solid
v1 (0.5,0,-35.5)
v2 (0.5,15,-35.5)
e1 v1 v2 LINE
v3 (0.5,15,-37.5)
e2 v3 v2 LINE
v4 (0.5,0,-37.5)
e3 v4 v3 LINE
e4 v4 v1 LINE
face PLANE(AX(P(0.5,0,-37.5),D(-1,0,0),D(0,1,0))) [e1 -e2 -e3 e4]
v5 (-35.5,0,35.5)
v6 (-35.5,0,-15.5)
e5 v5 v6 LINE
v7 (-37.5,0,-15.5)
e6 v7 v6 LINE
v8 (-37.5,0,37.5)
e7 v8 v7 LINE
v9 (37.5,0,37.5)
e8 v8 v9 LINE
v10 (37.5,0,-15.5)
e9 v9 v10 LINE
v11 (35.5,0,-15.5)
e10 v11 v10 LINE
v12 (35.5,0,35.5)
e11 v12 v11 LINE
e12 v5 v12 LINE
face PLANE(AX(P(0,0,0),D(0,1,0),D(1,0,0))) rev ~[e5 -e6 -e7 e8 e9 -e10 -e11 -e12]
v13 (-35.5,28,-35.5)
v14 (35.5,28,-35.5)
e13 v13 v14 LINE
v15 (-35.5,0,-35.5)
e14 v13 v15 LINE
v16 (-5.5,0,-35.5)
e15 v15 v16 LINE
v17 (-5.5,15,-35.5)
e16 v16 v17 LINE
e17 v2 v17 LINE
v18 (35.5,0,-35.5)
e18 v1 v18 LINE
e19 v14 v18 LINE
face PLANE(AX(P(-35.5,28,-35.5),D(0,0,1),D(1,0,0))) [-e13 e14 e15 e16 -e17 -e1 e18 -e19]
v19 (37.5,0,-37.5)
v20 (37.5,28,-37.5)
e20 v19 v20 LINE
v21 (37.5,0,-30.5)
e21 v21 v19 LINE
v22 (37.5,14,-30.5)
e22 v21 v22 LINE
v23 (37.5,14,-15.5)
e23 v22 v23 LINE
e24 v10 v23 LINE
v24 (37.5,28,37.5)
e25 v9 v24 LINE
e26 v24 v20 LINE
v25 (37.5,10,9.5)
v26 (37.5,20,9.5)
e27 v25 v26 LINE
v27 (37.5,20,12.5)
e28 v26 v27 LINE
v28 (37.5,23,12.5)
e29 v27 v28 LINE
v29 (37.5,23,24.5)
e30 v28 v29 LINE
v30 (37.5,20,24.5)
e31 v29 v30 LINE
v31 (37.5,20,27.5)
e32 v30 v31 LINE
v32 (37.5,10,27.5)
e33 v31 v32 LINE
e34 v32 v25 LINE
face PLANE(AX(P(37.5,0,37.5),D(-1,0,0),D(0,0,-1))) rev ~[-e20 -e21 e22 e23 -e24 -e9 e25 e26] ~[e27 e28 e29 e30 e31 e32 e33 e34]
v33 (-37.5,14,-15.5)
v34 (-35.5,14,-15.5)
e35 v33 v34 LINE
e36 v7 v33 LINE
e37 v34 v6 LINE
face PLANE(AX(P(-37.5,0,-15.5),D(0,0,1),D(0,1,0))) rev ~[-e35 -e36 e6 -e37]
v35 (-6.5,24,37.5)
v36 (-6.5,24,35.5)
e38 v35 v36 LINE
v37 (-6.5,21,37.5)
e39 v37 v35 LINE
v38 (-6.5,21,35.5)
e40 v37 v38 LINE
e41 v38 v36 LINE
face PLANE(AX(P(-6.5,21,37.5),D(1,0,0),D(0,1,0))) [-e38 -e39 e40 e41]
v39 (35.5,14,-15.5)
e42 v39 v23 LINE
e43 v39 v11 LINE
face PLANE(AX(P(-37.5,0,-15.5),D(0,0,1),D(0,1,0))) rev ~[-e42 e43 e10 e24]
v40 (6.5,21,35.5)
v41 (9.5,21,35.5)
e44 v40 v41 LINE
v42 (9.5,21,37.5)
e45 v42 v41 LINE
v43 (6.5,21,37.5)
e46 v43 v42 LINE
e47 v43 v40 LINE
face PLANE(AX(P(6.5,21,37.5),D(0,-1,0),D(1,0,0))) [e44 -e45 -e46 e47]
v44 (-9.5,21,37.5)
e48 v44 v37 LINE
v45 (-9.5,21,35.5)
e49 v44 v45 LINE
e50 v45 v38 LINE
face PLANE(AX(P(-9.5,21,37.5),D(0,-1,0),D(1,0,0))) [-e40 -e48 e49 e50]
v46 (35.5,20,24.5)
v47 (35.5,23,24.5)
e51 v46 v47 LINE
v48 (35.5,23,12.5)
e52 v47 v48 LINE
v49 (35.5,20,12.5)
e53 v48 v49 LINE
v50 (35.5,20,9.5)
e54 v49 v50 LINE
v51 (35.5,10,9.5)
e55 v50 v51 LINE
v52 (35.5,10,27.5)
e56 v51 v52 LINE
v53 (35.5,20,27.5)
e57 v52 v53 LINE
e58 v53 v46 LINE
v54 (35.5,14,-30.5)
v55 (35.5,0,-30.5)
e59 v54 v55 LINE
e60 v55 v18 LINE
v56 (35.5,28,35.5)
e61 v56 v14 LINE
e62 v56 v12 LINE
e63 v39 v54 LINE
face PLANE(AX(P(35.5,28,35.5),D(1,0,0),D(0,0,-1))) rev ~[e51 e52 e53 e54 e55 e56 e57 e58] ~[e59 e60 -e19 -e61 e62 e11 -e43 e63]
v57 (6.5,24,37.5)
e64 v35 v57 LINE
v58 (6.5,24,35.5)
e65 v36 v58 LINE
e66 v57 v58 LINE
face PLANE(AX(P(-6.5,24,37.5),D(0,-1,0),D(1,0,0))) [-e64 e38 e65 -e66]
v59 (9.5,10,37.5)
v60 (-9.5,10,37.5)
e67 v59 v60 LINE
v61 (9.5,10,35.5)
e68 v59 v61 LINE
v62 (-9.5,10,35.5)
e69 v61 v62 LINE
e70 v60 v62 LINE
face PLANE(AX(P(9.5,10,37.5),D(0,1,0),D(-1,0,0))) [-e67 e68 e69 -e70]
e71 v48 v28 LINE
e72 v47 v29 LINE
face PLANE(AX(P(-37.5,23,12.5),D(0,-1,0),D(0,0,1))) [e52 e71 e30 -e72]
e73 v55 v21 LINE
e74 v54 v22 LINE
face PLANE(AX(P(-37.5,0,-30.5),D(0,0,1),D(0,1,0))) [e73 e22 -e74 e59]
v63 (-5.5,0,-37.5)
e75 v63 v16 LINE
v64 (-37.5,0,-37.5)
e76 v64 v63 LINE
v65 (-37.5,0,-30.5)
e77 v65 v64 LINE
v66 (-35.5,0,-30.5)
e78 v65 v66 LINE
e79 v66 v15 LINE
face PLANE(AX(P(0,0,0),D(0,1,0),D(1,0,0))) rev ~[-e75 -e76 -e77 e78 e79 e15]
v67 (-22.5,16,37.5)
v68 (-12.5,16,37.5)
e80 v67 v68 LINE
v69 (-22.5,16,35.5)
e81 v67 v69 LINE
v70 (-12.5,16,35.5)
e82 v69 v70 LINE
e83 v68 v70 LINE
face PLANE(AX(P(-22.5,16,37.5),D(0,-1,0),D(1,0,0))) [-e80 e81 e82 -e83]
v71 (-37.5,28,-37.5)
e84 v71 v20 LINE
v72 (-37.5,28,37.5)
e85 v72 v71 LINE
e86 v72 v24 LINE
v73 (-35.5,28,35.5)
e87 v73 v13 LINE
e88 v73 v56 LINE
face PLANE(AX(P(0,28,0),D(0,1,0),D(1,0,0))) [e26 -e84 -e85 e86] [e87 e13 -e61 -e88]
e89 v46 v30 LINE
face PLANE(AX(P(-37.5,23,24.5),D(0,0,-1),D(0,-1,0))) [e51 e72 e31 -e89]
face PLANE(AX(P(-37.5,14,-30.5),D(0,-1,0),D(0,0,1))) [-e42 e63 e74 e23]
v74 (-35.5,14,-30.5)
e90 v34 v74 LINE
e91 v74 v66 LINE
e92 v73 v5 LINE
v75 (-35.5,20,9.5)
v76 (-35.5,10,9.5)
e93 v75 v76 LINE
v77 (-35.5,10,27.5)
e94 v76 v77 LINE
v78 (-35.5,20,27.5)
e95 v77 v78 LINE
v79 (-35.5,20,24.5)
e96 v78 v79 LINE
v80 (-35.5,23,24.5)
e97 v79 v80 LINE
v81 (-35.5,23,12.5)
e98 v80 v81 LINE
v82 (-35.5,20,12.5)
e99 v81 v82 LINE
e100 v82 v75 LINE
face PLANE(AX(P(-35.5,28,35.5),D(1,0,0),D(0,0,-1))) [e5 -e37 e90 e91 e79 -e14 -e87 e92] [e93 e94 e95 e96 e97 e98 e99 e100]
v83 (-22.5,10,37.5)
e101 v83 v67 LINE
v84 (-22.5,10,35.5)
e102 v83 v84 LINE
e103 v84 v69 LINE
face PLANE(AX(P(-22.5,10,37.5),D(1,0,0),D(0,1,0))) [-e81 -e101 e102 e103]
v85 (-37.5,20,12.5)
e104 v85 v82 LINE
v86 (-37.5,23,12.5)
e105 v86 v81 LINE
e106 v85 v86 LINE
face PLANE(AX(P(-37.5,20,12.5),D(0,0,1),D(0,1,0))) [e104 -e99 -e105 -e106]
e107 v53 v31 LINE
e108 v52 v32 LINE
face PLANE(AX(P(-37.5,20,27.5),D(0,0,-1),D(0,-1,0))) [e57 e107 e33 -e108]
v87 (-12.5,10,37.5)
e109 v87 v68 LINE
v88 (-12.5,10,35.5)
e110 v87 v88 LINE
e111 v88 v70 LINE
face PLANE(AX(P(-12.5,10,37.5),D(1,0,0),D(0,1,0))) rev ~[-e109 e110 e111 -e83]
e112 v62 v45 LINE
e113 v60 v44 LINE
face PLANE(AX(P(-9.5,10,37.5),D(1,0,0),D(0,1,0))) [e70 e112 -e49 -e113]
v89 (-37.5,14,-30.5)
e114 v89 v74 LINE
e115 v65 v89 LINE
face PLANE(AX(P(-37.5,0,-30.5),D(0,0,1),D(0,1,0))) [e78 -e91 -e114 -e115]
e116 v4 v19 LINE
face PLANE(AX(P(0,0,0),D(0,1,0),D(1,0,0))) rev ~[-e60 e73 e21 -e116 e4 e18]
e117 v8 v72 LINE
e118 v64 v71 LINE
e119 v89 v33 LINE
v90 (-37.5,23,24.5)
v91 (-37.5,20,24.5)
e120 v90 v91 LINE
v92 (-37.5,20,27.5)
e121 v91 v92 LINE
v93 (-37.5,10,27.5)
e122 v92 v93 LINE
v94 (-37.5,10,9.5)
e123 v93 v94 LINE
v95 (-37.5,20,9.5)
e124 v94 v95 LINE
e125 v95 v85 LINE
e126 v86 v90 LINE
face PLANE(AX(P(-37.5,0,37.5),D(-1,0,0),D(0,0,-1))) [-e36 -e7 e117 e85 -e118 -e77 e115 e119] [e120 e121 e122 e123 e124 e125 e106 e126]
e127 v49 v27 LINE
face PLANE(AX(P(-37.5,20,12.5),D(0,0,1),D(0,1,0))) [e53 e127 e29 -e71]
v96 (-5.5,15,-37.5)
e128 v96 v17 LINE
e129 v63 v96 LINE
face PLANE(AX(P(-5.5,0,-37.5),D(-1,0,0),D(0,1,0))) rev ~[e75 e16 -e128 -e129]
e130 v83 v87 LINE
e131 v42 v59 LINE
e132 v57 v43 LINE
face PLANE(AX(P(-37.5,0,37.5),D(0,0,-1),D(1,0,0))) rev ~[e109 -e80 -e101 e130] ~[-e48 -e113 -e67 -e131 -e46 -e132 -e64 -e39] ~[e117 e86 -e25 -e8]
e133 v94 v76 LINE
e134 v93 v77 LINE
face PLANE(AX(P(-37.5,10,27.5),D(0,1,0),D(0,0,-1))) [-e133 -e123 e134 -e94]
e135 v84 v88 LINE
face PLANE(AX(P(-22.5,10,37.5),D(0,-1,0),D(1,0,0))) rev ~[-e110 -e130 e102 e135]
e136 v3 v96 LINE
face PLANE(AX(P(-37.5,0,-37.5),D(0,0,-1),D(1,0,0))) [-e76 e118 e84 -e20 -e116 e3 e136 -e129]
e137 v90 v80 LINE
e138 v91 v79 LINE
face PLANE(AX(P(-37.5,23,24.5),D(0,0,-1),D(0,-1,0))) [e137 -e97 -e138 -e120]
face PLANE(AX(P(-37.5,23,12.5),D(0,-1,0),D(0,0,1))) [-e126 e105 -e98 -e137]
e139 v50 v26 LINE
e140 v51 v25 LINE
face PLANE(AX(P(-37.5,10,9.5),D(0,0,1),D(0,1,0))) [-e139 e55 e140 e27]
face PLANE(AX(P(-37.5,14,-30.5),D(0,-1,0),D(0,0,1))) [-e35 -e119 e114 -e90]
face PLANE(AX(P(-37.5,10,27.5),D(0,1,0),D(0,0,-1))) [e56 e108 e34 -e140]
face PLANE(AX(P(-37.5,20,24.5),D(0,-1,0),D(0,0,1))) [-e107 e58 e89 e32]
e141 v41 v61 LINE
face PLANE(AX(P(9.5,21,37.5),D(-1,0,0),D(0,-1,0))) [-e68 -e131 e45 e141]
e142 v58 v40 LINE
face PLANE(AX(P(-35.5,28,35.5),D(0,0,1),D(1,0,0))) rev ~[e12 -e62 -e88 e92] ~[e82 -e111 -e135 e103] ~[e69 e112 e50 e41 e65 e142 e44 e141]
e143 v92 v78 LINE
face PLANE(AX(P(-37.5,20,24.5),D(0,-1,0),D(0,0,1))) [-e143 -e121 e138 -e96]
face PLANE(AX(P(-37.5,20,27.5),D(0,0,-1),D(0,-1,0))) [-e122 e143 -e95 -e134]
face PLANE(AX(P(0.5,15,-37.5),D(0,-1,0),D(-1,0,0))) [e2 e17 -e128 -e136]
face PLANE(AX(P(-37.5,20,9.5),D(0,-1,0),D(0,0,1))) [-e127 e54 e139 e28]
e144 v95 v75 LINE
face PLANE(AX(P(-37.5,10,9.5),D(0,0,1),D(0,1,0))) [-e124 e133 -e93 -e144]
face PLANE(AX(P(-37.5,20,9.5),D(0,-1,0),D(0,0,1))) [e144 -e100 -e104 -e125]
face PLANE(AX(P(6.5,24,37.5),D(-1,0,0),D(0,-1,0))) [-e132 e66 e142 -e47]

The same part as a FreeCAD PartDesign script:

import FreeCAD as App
import Part
import Sketcher

V = App.Vector
Q = App.Units.Quantity


def add_polygon(sketch, points):
    """Adds a closed chain of lines whose ends are joined by coincident constraints."""
    first, n = sketch.GeometryCount, len(points)
    for a, b in zip(points, points[1:] + points[:1]):
        sketch.addGeometry(Part.LineSegment(App.Vector(*a, 0), App.Vector(*b, 0)), False)
    for i in range(n):
        sketch.addConstraint(Sketcher.Constraint("Coincident", first + i, 2, first + (i + 1) % n, 1))

doc = App.newDocument("Part")
body = doc.addObject("PartDesign::Body", "Body")

sketch1 = body.newObject("Sketcher::SketchObject", "Sketch")
sketch1.AttachmentSupport = (doc.getObject("XZ_Plane"), [""])
sketch1.MapMode = "FlatFace"
add_polygon(sketch1, [(-38, -38), (-38, 38), (38, 38), (38, -38)])
sketch1.addConstraint([
    Sketcher.Constraint("Vertical", 0),
    Sketcher.Constraint("Horizontal", 1),
    Sketcher.Constraint("Vertical", 2),
    Sketcher.Constraint("Horizontal", 3),
    Sketcher.Constraint("Symmetric", 0, 2, 2, 2, -1, 1),
    Sketcher.Constraint("Equal", 3, 0),
    Sketcher.Constraint("DistanceX", 1, 1, 1, 2, Q("75 mm")),
])
pad1 = body.newObject("PartDesign::Pad", "Pad")
pad1.Profile = sketch1
pad1.Length = 28
pad1.Reversed = True

sketch2 = body.newObject("Sketcher::SketchObject", "Sketch001")
sketch2.AttachmentSupport = (doc.getObject("XZ_Plane"), [""])
sketch2.MapMode = "FlatFace"
sketch2.AttachmentOffset = App.Placement(V(0, 0, -28), App.Rotation())
add_polygon(sketch2, [(-36, -36), (-36, 36), (36, 36), (36, -36)])
sketch2.addConstraint([
    Sketcher.Constraint("Vertical", 0),
    Sketcher.Constraint("Horizontal", 1),
    Sketcher.Constraint("Vertical", 2),
    Sketcher.Constraint("Horizontal", 3),
    Sketcher.Constraint("Symmetric", 0, 2, 2, 2, -1, 1),
    Sketcher.Constraint("Equal", 3, 0),
    Sketcher.Constraint("DistanceX", 1, 1, 1, 2, Q("71 mm")),
])
pocket1 = body.newObject("PartDesign::Pocket", "Pocket")
pocket1.Profile = sketch2
pocket1.Type = "ThroughAll"
pocket1.Reversed = True

sketch3 = body.newObject("Sketcher::SketchObject", "Sketch002")
sketch3.AttachmentSupport = (doc.getObject("XY_Plane"), [""])
sketch3.MapMode = "FlatFace"
sketch3.AttachmentOffset = App.Placement(V(0, 0, 37.5), App.Rotation())
add_polygon(sketch3, [(-22.5, 16), (-22.5, 10), (-12.5, 10), (-12.5, 16)])
add_polygon(sketch3, [(6.5, 24), (-6.5, 24), (-6.5, 21), (-9.5, 21), (-9.5, 10), (9.5, 10), (9.5, 21), (6.5, 21)])
sketch3.addConstraint([
    Sketcher.Constraint("Vertical", 0),
    Sketcher.Constraint("Horizontal", 1),
    Sketcher.Constraint("Vertical", 2),
    Sketcher.Constraint("Horizontal", 3),
    Sketcher.Constraint("Horizontal", 4),
    Sketcher.Constraint("Vertical", 5),
    Sketcher.Constraint("Horizontal", 6),
    Sketcher.Constraint("Vertical", 7),
    Sketcher.Constraint("Horizontal", 8),
    Sketcher.Constraint("Vertical", 9),
    Sketcher.Constraint("Horizontal", 10),
    Sketcher.Constraint("Vertical", 11),
    Sketcher.Constraint("Symmetric", 6, 2, 9, 2, -2),
    Sketcher.Constraint("Horizontal", 1, 2, 7, 2),
    Sketcher.Constraint("Equal", 6, 10),
    Sketcher.Constraint("Equal", 10, 5),
    Sketcher.Constraint("DistanceX", 1, 1, 1, 2, Q("10 mm")),
    Sketcher.Constraint("DistanceX", 4, 2, 4, 1, Q("13 mm")),
    Sketcher.Constraint("DistanceX", 6, 2, 6, 1, Q("3 mm")),
    Sketcher.Constraint("DistanceY", 0, 2, 0, 1, Q("6 mm")),
    Sketcher.Constraint("DistanceY", 7, 2, 7, 1, Q("11 mm")),
    Sketcher.Constraint("DistanceY", -1, 1, 0, 2, Q("10 mm")),
    Sketcher.Constraint("DistanceX", 2, 2, 4, 2, Q("6 mm")),
])
pocket2 = body.newObject("PartDesign::Pocket", "Pocket001")
pocket2.Profile = sketch3
pocket2.Length = 2

sketch4 = body.newObject("Sketcher::SketchObject", "Sketch003")
sketch4.AttachmentSupport = (doc.getObject("YZ_Plane"), [""])
sketch4.MapMode = "FlatFace"
sketch4.AttachmentOffset = App.Placement(V(0, 0, -37.5), App.Rotation())
add_polygon(sketch4, [(23, 24.5), (23, 12.5), (20, 12.5), (20, 9.5), (10, 9.5), (10, 27.5), (20, 27.5), (20, 24.5)])
add_polygon(sketch4, [(14, -30.5), (0, -30.5), (0, -15.5), (14, -15.5)])
sketch4.addConstraint([
    Sketcher.Constraint("Vertical", 0),
    Sketcher.Constraint("Horizontal", 1),
    Sketcher.Constraint("Vertical", 2),
    Sketcher.Constraint("Horizontal", 3),
    Sketcher.Constraint("Vertical", 4),
    Sketcher.Constraint("Horizontal", 5),
    Sketcher.Constraint("Vertical", 6),
    Sketcher.Constraint("Horizontal", 7),
    Sketcher.Constraint("Horizontal", 8),
    Sketcher.Constraint("Vertical", 9),
    Sketcher.Constraint("Horizontal", 10),
    Sketcher.Constraint("Vertical", 11),
    Sketcher.Constraint("PointOnObject", 8, 2, -2),
    Sketcher.Constraint("Vertical", 2, 2, 5, 2),
    Sketcher.Constraint("Equal", 7, 2),
    Sketcher.Constraint("Equal", 2, 6),
    Sketcher.Constraint("DistanceX", 1, 2, 1, 1, Q("3 mm")),
    Sketcher.Constraint("DistanceX", 3, 2, 3, 1, Q("10 mm")),
    Sketcher.Constraint("DistanceX", 8, 2, 8, 1, Q("14 mm")),
    Sketcher.Constraint("DistanceY", 0, 2, 0, 1, Q("12 mm")),
    Sketcher.Constraint("DistanceY", 9, 1, 9, 2, Q("15 mm")),
    Sketcher.Constraint("DistanceX", -1, 1, 0, 2, Q("23 mm")),
    Sketcher.Constraint("DistanceY", 8, 2, 3, 2, Q("40 mm")),
    Sketcher.Constraint("DistanceY", -1, 1, 0, 2, Q("12.5 mm")),
])
pocket3 = body.newObject("PartDesign::Pocket", "Pocket002")
pocket3.Profile = sketch4
pocket3.Type = "ThroughAll"
pocket3.Reversed = True

sketch5 = body.newObject("Sketcher::SketchObject", "Sketch004")
sketch5.AttachmentSupport = (doc.getObject("XY_Plane"), [""])
sketch5.MapMode = "FlatFace"
sketch5.AttachmentOffset = App.Placement(V(0, 0, -37.5), App.Rotation())
add_polygon(sketch5, [(0, 15), (0, 0), (-6, 0), (-6, 15)])
sketch5.addConstraint([
    Sketcher.Constraint("Vertical", 0),
    Sketcher.Constraint("Horizontal", 1),
    Sketcher.Constraint("Vertical", 2),
    Sketcher.Constraint("Horizontal", 3),
    Sketcher.Constraint("PointOnObject", 0, 2, -1),
    Sketcher.Constraint("DistanceX", 1, 2, 1, 1, Q("6 mm")),
    Sketcher.Constraint("DistanceY", 0, 2, 0, 1, Q("15 mm")),
    Sketcher.Constraint("DistanceX", -1, 1, 0, 2, Q("0.5 mm")),
])
pocket4 = body.newObject("PartDesign::Pocket", "Pocket003")
pocket4.Profile = sketch5
pocket4.Length = 2
pocket4.Reversed = True

doc.recompute()
